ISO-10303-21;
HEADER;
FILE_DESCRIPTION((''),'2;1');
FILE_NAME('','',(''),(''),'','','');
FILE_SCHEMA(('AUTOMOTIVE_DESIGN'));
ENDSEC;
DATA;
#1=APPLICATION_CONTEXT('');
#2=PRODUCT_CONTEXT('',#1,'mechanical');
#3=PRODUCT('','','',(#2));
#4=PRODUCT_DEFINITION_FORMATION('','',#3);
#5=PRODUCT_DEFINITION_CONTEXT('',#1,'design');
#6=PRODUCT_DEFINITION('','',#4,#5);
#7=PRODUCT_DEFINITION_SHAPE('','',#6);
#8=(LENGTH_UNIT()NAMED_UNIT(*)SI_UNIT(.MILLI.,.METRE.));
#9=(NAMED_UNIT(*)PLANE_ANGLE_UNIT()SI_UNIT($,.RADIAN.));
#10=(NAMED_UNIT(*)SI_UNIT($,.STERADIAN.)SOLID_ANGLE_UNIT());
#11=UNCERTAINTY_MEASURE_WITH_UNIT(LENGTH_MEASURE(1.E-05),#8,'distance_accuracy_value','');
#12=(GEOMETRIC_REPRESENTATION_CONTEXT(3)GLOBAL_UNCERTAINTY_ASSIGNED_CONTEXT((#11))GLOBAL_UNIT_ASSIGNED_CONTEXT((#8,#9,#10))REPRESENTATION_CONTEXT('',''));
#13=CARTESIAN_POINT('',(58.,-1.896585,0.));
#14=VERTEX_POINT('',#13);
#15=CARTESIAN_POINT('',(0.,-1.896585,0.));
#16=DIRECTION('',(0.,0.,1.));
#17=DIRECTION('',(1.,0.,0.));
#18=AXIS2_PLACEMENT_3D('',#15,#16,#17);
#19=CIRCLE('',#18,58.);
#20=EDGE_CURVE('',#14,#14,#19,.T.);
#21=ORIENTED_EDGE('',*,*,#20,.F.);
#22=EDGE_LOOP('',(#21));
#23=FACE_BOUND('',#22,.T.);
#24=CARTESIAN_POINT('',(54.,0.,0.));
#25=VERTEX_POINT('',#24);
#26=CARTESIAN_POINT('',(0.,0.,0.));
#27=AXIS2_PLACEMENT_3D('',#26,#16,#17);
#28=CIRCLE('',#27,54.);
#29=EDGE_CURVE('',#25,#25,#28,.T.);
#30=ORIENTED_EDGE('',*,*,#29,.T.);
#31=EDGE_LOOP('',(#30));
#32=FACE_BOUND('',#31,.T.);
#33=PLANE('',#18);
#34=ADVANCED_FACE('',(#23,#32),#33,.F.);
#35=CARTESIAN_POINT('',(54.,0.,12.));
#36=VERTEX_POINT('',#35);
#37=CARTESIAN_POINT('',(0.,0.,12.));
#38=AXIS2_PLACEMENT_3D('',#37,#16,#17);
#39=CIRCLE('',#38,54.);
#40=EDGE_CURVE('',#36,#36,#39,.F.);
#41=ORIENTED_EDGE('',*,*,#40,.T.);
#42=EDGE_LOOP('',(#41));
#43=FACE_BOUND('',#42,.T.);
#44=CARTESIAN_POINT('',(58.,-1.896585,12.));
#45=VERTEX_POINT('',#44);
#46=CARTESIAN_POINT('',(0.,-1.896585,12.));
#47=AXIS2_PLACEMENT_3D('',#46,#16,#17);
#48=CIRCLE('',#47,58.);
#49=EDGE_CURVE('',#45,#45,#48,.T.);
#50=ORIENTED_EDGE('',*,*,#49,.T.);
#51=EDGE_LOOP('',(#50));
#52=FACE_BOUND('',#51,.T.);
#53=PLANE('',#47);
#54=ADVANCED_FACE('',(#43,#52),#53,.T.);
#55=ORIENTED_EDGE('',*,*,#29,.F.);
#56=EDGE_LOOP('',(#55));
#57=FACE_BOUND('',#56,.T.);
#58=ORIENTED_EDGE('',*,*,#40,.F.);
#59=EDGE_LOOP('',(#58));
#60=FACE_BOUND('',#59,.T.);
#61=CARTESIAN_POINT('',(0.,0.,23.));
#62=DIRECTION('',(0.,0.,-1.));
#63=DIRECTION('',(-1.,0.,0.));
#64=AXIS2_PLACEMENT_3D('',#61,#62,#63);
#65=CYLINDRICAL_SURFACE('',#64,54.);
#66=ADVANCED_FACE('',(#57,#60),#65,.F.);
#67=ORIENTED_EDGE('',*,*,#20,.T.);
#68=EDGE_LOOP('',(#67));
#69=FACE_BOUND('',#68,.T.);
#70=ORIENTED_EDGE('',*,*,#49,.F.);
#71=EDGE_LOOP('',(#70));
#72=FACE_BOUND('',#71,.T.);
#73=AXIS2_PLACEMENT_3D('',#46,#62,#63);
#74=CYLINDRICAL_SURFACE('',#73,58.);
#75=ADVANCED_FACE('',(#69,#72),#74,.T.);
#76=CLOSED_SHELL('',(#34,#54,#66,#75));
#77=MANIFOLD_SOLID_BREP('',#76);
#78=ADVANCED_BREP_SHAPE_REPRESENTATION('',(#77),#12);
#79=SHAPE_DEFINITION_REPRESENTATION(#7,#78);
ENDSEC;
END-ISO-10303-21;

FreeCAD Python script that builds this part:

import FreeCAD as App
import Part
import Sketcher
Q = App.Units.Quantity

doc = App.newDocument("Part")
body = doc.addObject("PartDesign::Body", "Body")

sketch1 = body.newObject("Sketcher::SketchObject", "Sketch")
sketch1.AttachmentSupport = (doc.getObject("XY_Plane"), [""])
sketch1.MapMode = "FlatFace"
sketch1.addGeometry(Part.Circle(App.Vector(0, -2, 0), App.Vector(0, 0, 1), 58), False)
sketch1.addConstraint([
    Sketcher.Constraint("PointOnObject", 0, 3, -2),
    Sketcher.Constraint("Diameter", 0, Q("116 mm")),
    Sketcher.Constraint("DistanceY", 0, 3, -1, 1, Q("1.896585 mm")),
])
pad1 = body.newObject("PartDesign::Pad", "Pad")
pad1.Profile = sketch1
pad1.Length = 12

sketch2 = body.newObject("Sketcher::SketchObject", "Sketch001")
sketch2.AttachmentSupport = (doc.getObject("XY_Plane"), [""])
sketch2.MapMode = "FlatFace"
sketch2.addGeometry(Part.Circle(App.Vector(0, 0, 0), App.Vector(0, 0, 1), 54), False)
sketch2.addConstraint([
    Sketcher.Constraint("Coincident", 0, 3, -1, 1),
    Sketcher.Constraint("Diameter", 0, Q("108 mm")),
])
pocket1 = body.newObject("PartDesign::Pocket", "Pocket")
pocket1.Profile = sketch2
pocket1.Length = 23
pocket1.Reversed = True

doc.recompute()
